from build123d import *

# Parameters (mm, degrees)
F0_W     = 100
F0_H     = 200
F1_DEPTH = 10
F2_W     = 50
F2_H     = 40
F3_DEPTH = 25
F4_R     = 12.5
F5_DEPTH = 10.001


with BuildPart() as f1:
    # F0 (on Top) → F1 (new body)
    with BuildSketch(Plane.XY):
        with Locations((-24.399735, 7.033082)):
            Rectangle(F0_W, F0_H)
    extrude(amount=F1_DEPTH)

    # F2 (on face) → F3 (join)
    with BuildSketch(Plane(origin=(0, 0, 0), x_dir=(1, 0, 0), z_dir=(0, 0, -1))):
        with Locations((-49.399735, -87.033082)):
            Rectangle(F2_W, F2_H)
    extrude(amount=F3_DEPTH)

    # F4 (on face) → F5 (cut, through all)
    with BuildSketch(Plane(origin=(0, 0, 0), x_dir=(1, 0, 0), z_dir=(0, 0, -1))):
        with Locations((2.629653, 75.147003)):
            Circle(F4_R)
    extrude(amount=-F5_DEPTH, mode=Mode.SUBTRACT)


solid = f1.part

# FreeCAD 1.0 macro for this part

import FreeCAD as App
import Part
import Sketcher

V = App.Vector
Q = App.Units.Quantity

doc = App.newDocument("Part")
body = doc.addObject("PartDesign::Body", "Body")

sketch1 = doc.addObject("Sketcher::SketchObject", "Sketch")
body.addObject(sketch1)
sketch1.AttachmentSupport = (doc.XY_Plane, [""])
sketch1.MapMode = "FlatFace"
sketch1.addGeometry(Part.LineSegment(V(-74.399735, 107.033082, 0), V(-74.399735, -92.966918, 0)), False)
sketch1.addGeometry(Part.LineSegment(V(-74.399735, -92.966918, 0), V(25.600265, -92.966918, 0)), False)
sketch1.addGeometry(Part.LineSegment(V(25.600265, -92.966918, 0), V(25.600265, 107.033082, 0)), False)
sketch1.addGeometry(Part.LineSegment(V(25.600265, 107.033082, 0), V(-74.399735, 107.033082, 0)), False)
sketch1.addConstraint(Sketcher.Constraint("Coincident", 0, 2, 1, 1))
sketch1.addConstraint(Sketcher.Constraint("Coincident", 1, 2, 2, 1))
sketch1.addConstraint(Sketcher.Constraint("Coincident", 2, 2, 3, 1))
sketch1.addConstraint(Sketcher.Constraint("Coincident", 3, 2, 0, 1))
sketch1.addConstraint(Sketcher.Constraint("Vertical", 0))
sketch1.addConstraint(Sketcher.Constraint("Horizontal", 1))
sketch1.addConstraint(Sketcher.Constraint("Vertical", 2))
sketch1.addConstraint(Sketcher.Constraint("Horizontal", 3))
sketch1.addConstraint(Sketcher.Constraint("DistanceX", 1, 1, 1, 2, Q("100 mm")))
sketch1.addConstraint(Sketcher.Constraint("DistanceY", 0, 2, 0, 1, Q("200 mm")))
sketch1.addConstraint(Sketcher.Constraint("DistanceY", 0, 2, -1, 1, Q("92.966918 mm")))
sketch1.addConstraint(Sketcher.Constraint("DistanceX", 0, 2, -1, 1, Q("74.399735 mm")))
pad1 = doc.addObject("PartDesign::Pad", "Pad")
body.addObject(pad1)
pad1.Profile = sketch1
pad1.Length = 10

sketch2 = doc.addObject("Sketcher::SketchObject", "Sketch001")
body.addObject(sketch2)
sketch2.AttachmentSupport = (doc.XY_Plane, [""])
sketch2.MapMode = "FlatFace"
sketch2.addGeometry(Part.LineSegment(V(-74.399735, 67.033082, 0), V(-74.399735, 107.033082, 0)), False)
sketch2.addGeometry(Part.LineSegment(V(-74.399735, 107.033082, 0), V(-24.399735, 107.033082, 0)), False)
sketch2.addGeometry(Part.LineSegment(V(-24.399735, 107.033082, 0), V(-24.399735, 67.033082, 0)), False)
sketch2.addGeometry(Part.LineSegment(V(-24.399735, 67.033082, 0), V(-74.399735, 67.033082, 0)), False)
sketch2.addConstraint(Sketcher.Constraint("Coincident", 0, 2, 1, 1))
sketch2.addConstraint(Sketcher.Constraint("Coincident", 1, 2, 2, 1))
sketch2.addConstraint(Sketcher.Constraint("Coincident", 2, 2, 3, 1))
sketch2.addConstraint(Sketcher.Constraint("Coincident", 3, 2, 0, 1))
sketch2.addConstraint(Sketcher.Constraint("Vertical", 0))
sketch2.addConstraint(Sketcher.Constraint("Horizontal", 1))
sketch2.addConstraint(Sketcher.Constraint("Vertical", 2))
sketch2.addConstraint(Sketcher.Constraint("Horizontal", 3))
sketch2.addConstraint(Sketcher.Constraint("DistanceX", 1, 1, 1, 2, Q("50 mm")))
sketch2.addConstraint(Sketcher.Constraint("DistanceY", 0, 1, 0, 2, Q("40 mm")))
sketch2.addConstraint(Sketcher.Constraint("DistanceY", -1, 1, 0, 2, Q("107.033082 mm")))
sketch2.addConstraint(Sketcher.Constraint("DistanceX", 0, 2, -1, 1, Q("74.399735 mm")))
pad2 = doc.addObject("PartDesign::Pad", "Pad001")
body.addObject(pad2)
pad2.Profile = sketch2
pad2.Length = 25
pad2.Reversed = True

sketch3 = doc.addObject("Sketcher::SketchObject", "Sketch002")
body.addObject(sketch3)
sketch3.AttachmentSupport = (doc.XY_Plane, [""])
sketch3.MapMode = "FlatFace"
sketch3.addGeometry(Part.Circle(V(2.629653, -75.147003, 0), V(0, 0, 1), 12.5), False)
sketch3.addConstraint(Sketcher.Constraint("Diameter", 0, Q("25 mm")))
sketch3.addConstraint(Sketcher.Constraint("DistanceX", -1, 1, 0, 3, Q("2.629653 mm")))
sketch3.addConstraint(Sketcher.Constraint("DistanceY", 0, 3, -1, 1, Q("75.147003 mm")))
pocket1 = doc.addObject("PartDesign::Pocket", "Pocket")
body.addObject(pocket1)
pocket1.Profile = sketch3
pocket1.Type = "ThroughAll"
pocket1.Reversed = True

doc.recompute()
